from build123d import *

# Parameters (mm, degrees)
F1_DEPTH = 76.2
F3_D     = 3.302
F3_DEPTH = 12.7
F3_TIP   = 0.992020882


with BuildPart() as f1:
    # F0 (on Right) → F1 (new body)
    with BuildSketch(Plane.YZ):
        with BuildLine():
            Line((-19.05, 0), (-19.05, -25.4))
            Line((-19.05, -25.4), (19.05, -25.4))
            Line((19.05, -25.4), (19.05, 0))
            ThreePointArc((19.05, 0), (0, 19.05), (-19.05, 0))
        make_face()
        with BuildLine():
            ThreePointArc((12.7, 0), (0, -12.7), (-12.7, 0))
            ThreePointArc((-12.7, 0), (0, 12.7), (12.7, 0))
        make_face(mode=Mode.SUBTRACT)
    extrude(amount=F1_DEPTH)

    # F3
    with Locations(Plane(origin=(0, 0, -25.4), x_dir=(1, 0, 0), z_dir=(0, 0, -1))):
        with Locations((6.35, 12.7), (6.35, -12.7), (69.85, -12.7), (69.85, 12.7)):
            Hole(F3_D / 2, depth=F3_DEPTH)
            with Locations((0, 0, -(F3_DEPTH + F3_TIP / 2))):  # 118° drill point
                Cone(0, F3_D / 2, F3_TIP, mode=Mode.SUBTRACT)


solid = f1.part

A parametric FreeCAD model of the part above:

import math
import FreeCAD as App
import Part
import Sketcher
from FreeCAD import Vector
Q = App.Units.Quantity

doc = App.newDocument("Part")
body = doc.addObject("PartDesign::Body", "Body")

sketch1 = body.newObject("Sketcher::SketchObject", "Sketch")
sketch1.AttachmentSupport = (doc.getObject("YZ_Plane"), [""])
sketch1.MapMode = "FlatFace"
sketch1.addGeometry(Part.LineSegment(Vector(-19, 0, 0), Vector(-19, -25, 0)), False)
sketch1.addGeometry(Part.LineSegment(Vector(-19, -25, 0), Vector(19, -25, 0)), False)
sketch1.addGeometry(Part.LineSegment(Vector(19, -25, 0), Vector(19, 0, 0)), False)
sketch1.addGeometry(Part.ArcOfCircle(Part.Circle(Vector(0, 0, 0), Vector(0, 0, 1), 19), math.radians(0), math.radians(180)), False)
sketch1.addGeometry(Part.Circle(Vector(0, 0, 0), Vector(0, 0, 1), 13), False)
sketch1.addConstraint(Sketcher.Constraint("Coincident", 0, 2, 1, 1))
sketch1.addConstraint(Sketcher.Constraint("Coincident", 1, 2, 2, 1))
sketch1.addConstraint(Sketcher.Constraint("Tangent", 2, 2, 3, 1))
sketch1.addConstraint(Sketcher.Constraint("Tangent", 3, 2, 0, 1))
sketch1.addConstraint(Sketcher.Constraint("Vertical", 0))
sketch1.addConstraint(Sketcher.Constraint("Horizontal", 1))
sketch1.addConstraint(Sketcher.Constraint("Vertical", 2))
sketch1.addConstraint(Sketcher.Constraint("Coincident", 3, 3, -1, 1))
sketch1.addConstraint(Sketcher.Constraint("Coincident", 4, 3, -1, 1))
sketch1.addConstraint(Sketcher.Constraint("Diameter", 4, Q("1 in")))
sketch1.addConstraint(Sketcher.Constraint("DistanceY", 0, 2, 0, 1, Q("1 in")))
sketch1.addConstraint(Sketcher.Constraint("Radius", 3, Q("0.75 in")))
pad1 = body.newObject("PartDesign::Pad", "Pad")
pad1.Profile = sketch1
pad1.Length = Q("3 in")

sketch2 = body.newObject("Sketcher::SketchObject", "Sketch001")
sketch2.AttachmentSupport = (doc.getObject("XY_Plane"), [""])
sketch2.MapMode = "FlatFace"
sketch2.AttachmentOffset = App.Placement(Vector(0, 0, -1 * 25.4), App.Rotation())
sketch2.addGeometry(Part.Circle(Vector(6.3, -12.7, 0), Vector(0, 0, 1), 1.7), False)
sketch2.addGeometry(Part.Circle(Vector(6.3, 12.7, 0), Vector(0, 0, 1), 1.7), False)
sketch2.addGeometry(Part.Circle(Vector(69.8, 12.7, 0), Vector(0, 0, 1), 1.7), False)
sketch2.addGeometry(Part.Circle(Vector(69.8, -12.7, 0), Vector(0, 0, 1), 1.7), False)
sketch2.addConstraint(Sketcher.Constraint("Equal", 0, 1))
sketch2.addConstraint(Sketcher.Constraint("Equal", 1, 2))
sketch2.addConstraint(Sketcher.Constraint("Equal", 2, 3))
sketch2.addConstraint(Sketcher.Constraint("Symmetric", 0, 3, 1, 3, -1))
sketch2.addConstraint(Sketcher.Constraint("Symmetric", 2, 3, 3, 3, -1))
sketch2.addConstraint(Sketcher.Constraint("Horizontal", 1, 3, 2, 3))
sketch2.addConstraint(Sketcher.Constraint("Diameter", 0, Q("0.13 in")))
sketch2.addConstraint(Sketcher.Constraint("DistanceY", 0, 3, 1, 3, Q("1 in")))
sketch2.addConstraint(Sketcher.Constraint("DistanceX", 1, 3, 2, 3, Q("2.5 in")))
sketch2.addConstraint(Sketcher.Constraint("DistanceX", -1, 1, 0, 3, Q("0.25 in")))
doc.recompute()
hole = body.newObject("PartDesign::Hole", "Hole")
hole.Profile = sketch2
hole.ThreadType = "None"
hole.Diameter = Q("0.13 in")
hole.DepthType = "Dimension"
hole.Depth = Q("0.5 in")
hole.DrillPoint = "Angled"
hole.DrillPointAngle = 118
hole.Reversed = True

doc.recompute()
